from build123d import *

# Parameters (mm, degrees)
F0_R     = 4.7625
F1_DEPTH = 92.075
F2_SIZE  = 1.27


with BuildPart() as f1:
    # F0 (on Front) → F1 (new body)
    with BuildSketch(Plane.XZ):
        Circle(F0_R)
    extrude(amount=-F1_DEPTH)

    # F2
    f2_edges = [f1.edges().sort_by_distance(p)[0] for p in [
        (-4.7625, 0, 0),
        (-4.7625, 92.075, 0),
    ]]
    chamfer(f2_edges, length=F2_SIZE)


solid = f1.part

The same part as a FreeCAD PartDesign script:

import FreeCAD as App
import Part
import Sketcher
Q = App.Units.Quantity


def edges_at(feature, points):
    """Names of the edges that pass closest to the given points."""
    edges = feature.Shape.Edges
    near = lambda p: min(range(len(edges)), key=lambda i: edges[i].distToShape(Part.Vertex(*p))[0])
    return sorted({f"Edge{near(p) + 1}" for p in points})

doc = App.newDocument("Part")
body = doc.addObject("PartDesign::Body", "Body")

# Sketch on XZ plane
sketch1 = body.newObject("Sketcher::SketchObject", "Sketch")
sketch1.AttachmentSupport = (doc.getObject("XZ_Plane"), [""])
sketch1.MapMode = "FlatFace"
sketch1.addGeometry(Part.Circle(App.Vector(0, 0, 0), App.Vector(0, 0, 1), 4.8), False)
sketch1.addConstraint([
    Sketcher.Constraint("Coincident", 0, 3, -1, 1),
    Sketcher.Constraint("Diameter", 0, Q("0.375 in")),
])
pad1 = body.newObject("PartDesign::Pad", "Pad")
pad1.Profile = sketch1
pad1.Length = Q("3.625 in")
pad1.Reversed = True
doc.recompute()

chamfer = body.newObject("PartDesign::Chamfer", "Chamfer")
chamfer.Base = (pad1, edges_at(pad1, [(-4.763, 0, 0), (-4.763, 92.075, 0)]))
chamfer.Size = Q("0.05 in")

doc.recompute()
